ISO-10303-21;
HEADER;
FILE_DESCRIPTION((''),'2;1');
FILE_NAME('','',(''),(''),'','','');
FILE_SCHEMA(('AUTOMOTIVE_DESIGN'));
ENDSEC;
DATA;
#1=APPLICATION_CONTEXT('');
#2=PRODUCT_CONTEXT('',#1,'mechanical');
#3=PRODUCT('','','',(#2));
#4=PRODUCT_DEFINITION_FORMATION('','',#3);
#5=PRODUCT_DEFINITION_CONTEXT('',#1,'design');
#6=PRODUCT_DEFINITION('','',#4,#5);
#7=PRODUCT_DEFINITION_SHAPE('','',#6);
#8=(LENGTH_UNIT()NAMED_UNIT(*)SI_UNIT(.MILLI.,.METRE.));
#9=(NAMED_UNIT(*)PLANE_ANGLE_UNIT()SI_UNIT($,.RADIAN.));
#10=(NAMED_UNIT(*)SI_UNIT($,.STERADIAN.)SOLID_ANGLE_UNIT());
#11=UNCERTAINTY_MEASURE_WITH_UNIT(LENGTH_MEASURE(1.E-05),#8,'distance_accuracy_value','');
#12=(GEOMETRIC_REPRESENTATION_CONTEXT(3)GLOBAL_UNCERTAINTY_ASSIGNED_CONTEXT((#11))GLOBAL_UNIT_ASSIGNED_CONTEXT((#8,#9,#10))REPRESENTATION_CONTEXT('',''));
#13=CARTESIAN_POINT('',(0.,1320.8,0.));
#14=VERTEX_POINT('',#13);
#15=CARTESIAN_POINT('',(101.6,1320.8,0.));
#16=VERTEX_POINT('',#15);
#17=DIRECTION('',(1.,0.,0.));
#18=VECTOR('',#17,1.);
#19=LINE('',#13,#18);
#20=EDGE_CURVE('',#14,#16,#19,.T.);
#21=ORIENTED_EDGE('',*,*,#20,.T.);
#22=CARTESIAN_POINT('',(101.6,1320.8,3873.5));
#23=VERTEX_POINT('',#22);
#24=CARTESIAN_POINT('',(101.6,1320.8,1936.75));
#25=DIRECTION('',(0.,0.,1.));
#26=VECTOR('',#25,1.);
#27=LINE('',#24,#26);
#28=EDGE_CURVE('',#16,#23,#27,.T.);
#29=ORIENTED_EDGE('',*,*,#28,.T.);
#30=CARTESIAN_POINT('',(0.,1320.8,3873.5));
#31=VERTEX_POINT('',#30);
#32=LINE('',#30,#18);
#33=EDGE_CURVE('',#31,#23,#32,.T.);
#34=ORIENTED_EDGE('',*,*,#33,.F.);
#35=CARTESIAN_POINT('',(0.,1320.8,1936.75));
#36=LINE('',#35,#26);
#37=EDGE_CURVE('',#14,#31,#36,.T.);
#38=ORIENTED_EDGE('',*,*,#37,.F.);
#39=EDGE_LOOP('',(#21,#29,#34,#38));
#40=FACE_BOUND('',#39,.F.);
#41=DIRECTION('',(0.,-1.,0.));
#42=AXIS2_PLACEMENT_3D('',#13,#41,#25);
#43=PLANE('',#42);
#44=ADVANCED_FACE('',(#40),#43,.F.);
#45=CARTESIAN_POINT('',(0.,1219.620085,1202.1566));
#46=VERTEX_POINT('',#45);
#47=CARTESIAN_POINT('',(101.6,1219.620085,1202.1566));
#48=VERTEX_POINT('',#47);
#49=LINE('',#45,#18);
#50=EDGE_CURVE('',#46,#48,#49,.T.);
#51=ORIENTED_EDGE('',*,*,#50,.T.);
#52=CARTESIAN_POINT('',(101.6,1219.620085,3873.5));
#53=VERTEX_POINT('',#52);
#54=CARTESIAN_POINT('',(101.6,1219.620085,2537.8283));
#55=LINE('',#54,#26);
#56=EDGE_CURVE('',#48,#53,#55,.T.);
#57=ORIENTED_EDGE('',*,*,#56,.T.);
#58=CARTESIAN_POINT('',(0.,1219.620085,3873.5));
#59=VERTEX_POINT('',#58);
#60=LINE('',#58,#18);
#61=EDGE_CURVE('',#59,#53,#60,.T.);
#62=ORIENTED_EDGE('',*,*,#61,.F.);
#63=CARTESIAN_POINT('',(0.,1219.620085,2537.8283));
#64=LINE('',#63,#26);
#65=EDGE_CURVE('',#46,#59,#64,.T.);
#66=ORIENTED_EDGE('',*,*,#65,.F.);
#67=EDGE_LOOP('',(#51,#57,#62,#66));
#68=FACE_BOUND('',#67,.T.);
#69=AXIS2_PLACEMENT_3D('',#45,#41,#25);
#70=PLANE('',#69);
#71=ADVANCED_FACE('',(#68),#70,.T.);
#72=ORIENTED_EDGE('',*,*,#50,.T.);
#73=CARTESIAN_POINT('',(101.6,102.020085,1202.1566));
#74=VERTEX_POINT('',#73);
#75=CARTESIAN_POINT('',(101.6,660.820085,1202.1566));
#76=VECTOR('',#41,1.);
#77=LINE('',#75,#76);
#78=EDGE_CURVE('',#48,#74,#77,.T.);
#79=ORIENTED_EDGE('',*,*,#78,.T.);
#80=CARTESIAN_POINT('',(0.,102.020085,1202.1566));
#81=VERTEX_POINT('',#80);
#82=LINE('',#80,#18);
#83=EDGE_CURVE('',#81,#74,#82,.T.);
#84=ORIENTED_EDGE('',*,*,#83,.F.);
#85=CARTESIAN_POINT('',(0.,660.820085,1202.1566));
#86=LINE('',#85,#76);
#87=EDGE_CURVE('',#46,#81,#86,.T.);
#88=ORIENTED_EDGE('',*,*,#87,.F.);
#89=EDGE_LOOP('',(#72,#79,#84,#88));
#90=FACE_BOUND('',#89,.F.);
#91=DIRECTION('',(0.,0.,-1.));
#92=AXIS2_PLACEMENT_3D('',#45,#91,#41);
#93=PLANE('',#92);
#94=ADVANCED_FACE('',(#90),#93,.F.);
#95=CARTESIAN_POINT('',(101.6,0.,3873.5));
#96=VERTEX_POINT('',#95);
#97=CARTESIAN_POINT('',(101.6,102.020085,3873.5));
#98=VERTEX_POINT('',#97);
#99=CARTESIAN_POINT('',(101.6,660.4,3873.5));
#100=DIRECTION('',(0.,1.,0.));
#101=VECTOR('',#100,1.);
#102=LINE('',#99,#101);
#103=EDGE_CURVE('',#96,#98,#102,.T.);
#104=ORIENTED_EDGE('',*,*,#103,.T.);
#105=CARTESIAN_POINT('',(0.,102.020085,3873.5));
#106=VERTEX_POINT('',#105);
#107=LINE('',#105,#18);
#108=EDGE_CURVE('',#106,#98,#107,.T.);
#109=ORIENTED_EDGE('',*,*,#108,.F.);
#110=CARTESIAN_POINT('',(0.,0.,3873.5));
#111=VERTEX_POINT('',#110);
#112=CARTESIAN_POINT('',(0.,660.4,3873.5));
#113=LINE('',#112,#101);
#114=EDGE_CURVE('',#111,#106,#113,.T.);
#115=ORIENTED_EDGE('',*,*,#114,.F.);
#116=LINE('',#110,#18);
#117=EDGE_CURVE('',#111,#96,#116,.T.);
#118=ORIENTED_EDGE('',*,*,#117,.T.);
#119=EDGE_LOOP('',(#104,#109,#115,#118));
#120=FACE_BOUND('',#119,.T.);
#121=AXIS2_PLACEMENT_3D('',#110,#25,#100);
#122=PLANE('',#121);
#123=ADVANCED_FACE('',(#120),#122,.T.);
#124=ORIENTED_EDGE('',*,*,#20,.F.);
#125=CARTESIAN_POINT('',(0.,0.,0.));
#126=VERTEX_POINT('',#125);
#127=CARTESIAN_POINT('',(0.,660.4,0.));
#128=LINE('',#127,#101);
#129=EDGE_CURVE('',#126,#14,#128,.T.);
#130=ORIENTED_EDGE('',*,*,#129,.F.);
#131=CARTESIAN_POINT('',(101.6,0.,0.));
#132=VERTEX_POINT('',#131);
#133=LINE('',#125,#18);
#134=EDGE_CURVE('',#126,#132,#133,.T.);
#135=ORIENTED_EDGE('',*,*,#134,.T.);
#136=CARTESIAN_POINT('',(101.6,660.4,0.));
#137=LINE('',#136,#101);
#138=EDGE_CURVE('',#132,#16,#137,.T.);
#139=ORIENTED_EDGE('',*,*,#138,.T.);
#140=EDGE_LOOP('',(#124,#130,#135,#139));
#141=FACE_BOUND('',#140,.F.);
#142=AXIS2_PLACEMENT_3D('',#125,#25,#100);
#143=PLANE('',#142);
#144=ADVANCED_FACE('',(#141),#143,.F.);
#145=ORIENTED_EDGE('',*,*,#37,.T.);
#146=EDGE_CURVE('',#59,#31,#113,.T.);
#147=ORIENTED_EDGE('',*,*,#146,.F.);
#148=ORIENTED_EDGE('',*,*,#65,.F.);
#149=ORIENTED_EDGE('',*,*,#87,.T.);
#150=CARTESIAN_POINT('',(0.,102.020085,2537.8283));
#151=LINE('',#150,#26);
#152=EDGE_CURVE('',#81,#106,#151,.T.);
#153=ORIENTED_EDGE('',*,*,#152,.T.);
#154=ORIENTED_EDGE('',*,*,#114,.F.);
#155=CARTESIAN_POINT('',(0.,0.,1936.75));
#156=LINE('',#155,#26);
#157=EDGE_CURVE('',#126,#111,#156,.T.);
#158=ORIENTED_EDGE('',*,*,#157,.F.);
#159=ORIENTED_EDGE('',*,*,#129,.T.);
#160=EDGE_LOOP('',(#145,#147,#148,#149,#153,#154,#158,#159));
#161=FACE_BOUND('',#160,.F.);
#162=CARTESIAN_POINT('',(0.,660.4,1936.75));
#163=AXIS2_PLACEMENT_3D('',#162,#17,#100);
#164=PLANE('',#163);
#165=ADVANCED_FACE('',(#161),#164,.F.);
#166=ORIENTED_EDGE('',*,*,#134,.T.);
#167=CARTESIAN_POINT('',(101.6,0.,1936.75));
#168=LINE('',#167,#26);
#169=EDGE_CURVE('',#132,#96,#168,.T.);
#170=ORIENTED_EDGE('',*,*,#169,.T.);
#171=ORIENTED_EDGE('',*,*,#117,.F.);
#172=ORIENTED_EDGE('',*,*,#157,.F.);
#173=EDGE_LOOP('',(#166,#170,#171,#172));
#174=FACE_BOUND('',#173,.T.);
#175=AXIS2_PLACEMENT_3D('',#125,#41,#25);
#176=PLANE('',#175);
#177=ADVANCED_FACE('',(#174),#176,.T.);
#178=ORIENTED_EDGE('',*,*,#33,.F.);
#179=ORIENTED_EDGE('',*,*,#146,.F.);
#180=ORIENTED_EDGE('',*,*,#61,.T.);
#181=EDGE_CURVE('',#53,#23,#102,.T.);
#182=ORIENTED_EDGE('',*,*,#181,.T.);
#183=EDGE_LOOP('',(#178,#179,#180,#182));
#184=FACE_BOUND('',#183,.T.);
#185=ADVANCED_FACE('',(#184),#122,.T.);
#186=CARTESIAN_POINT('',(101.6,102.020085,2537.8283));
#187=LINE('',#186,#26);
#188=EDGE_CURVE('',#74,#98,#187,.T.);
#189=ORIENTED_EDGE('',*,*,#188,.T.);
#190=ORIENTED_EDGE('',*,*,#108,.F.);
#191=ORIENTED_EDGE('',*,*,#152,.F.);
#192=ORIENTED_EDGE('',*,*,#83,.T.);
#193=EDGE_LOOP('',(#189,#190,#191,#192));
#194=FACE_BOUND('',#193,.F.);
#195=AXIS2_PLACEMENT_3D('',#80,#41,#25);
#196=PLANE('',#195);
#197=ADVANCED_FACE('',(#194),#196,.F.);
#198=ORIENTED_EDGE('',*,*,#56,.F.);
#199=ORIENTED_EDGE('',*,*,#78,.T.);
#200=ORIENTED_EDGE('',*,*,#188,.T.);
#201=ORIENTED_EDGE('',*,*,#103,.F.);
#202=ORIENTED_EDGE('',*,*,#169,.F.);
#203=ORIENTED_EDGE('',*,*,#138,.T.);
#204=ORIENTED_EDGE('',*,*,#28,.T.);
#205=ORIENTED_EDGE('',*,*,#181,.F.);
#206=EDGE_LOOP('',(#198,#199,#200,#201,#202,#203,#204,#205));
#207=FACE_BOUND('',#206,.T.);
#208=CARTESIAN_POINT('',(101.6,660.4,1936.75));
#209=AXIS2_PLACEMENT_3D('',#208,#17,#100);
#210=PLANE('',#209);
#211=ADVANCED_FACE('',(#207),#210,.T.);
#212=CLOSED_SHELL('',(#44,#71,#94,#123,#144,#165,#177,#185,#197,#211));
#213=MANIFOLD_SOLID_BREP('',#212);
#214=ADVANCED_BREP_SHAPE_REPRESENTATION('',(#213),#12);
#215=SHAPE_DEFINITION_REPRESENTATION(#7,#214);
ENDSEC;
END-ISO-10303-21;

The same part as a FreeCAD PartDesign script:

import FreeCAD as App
import Part
import Sketcher
Q = App.Units.Quantity

doc = App.newDocument("Part")
body = doc.addObject("PartDesign::Body", "Body")

# Sketch on YZ plane
sketch1 = doc.addObject("Sketcher::SketchObject", "Sketch")
body.addObject(sketch1)
sketch1.AttachmentSupport = (doc.YZ_Plane, [""])
sketch1.MapMode = "FlatFace"
sketch1.addGeometry([
    Part.LineSegment(App.Vector(0, 3873.5, 0), App.Vector(0, 0, 0)),
    Part.LineSegment(App.Vector(0, 0, 0), App.Vector(1320.8, 0, 0)),
    Part.LineSegment(App.Vector(1320.8, 0, 0), App.Vector(1320.8, 3873.5, 0)),
    Part.LineSegment(App.Vector(1320.8, 3873.5, 0), App.Vector(0, 3873.5, 0)),
], False)
sketch1.addConstraint([
    Sketcher.Constraint("Coincident", 0, 2, 1, 1),
    Sketcher.Constraint("Coincident", 1, 2, 2, 1),
    Sketcher.Constraint("Coincident", 2, 2, 3, 1),
    Sketcher.Constraint("Coincident", 3, 2, 0, 1),
    Sketcher.Constraint("Vertical", 0),
    Sketcher.Constraint("Horizontal", 1),
    Sketcher.Constraint("Vertical", 2),
    Sketcher.Constraint("Horizontal", 3),
    Sketcher.Constraint("Coincident", 0, 2, -1, 1),
    Sketcher.Constraint("DistanceX", 1, 1, 1, 2, Q("52 in")),
    Sketcher.Constraint("DistanceY", 0, 2, 0, 1, Q("152.5 in")),
])
pad1 = doc.addObject("PartDesign::Pad", "Pad")
body.addObject(pad1)
pad1.Profile = sketch1
pad1.Length = Q("4 in")

# Sketch on YZ plane
sketch2 = doc.addObject("Sketcher::SketchObject", "Sketch001")
body.addObject(sketch2)
sketch2.AttachmentSupport = (doc.YZ_Plane, [""])
sketch2.MapMode = "FlatFace"
sketch2.addGeometry([
    Part.LineSegment(App.Vector(1219.620085, 3873.5, 0), App.Vector(1219.620085, 1202.1566, 0)),
    Part.LineSegment(App.Vector(1219.620085, 1202.1566, 0), App.Vector(102.020085, 1202.1566, 0)),
    Part.LineSegment(App.Vector(102.020085, 1202.1566, 0), App.Vector(102.020085, 3873.5, 0)),
    Part.LineSegment(App.Vector(102.020085, 3873.5, 0), App.Vector(1219.620085, 3873.5, 0)),
], False)
sketch2.addConstraint([
    Sketcher.Constraint("Coincident", 0, 2, 1, 1),
    Sketcher.Constraint("Coincident", 1, 2, 2, 1),
    Sketcher.Constraint("Coincident", 2, 2, 3, 1),
    Sketcher.Constraint("Coincident", 3, 2, 0, 1),
    Sketcher.Constraint("Vertical", 0),
    Sketcher.Constraint("Horizontal", 1),
    Sketcher.Constraint("Vertical", 2),
    Sketcher.Constraint("Horizontal", 3),
    Sketcher.Constraint("DistanceX", 1, 2, 1, 1, Q("44 in")),
    Sketcher.Constraint("DistanceY", -1, 1, 2, 2, Q("152.5 in")),
    Sketcher.Constraint("DistanceY", 0, 2, 0, 1, Q("105.171 in")),
    Sketcher.Constraint("DistanceX", -1, 1, 0, 2, Q("1219.620085 mm")),
])
pocket1 = doc.addObject("PartDesign::Pocket", "Pocket")
body.addObject(pocket1)
pocket1.Profile = sketch2
pocket1.Length = Q("4 in")
pocket1.Reversed = True

doc.recompute()
